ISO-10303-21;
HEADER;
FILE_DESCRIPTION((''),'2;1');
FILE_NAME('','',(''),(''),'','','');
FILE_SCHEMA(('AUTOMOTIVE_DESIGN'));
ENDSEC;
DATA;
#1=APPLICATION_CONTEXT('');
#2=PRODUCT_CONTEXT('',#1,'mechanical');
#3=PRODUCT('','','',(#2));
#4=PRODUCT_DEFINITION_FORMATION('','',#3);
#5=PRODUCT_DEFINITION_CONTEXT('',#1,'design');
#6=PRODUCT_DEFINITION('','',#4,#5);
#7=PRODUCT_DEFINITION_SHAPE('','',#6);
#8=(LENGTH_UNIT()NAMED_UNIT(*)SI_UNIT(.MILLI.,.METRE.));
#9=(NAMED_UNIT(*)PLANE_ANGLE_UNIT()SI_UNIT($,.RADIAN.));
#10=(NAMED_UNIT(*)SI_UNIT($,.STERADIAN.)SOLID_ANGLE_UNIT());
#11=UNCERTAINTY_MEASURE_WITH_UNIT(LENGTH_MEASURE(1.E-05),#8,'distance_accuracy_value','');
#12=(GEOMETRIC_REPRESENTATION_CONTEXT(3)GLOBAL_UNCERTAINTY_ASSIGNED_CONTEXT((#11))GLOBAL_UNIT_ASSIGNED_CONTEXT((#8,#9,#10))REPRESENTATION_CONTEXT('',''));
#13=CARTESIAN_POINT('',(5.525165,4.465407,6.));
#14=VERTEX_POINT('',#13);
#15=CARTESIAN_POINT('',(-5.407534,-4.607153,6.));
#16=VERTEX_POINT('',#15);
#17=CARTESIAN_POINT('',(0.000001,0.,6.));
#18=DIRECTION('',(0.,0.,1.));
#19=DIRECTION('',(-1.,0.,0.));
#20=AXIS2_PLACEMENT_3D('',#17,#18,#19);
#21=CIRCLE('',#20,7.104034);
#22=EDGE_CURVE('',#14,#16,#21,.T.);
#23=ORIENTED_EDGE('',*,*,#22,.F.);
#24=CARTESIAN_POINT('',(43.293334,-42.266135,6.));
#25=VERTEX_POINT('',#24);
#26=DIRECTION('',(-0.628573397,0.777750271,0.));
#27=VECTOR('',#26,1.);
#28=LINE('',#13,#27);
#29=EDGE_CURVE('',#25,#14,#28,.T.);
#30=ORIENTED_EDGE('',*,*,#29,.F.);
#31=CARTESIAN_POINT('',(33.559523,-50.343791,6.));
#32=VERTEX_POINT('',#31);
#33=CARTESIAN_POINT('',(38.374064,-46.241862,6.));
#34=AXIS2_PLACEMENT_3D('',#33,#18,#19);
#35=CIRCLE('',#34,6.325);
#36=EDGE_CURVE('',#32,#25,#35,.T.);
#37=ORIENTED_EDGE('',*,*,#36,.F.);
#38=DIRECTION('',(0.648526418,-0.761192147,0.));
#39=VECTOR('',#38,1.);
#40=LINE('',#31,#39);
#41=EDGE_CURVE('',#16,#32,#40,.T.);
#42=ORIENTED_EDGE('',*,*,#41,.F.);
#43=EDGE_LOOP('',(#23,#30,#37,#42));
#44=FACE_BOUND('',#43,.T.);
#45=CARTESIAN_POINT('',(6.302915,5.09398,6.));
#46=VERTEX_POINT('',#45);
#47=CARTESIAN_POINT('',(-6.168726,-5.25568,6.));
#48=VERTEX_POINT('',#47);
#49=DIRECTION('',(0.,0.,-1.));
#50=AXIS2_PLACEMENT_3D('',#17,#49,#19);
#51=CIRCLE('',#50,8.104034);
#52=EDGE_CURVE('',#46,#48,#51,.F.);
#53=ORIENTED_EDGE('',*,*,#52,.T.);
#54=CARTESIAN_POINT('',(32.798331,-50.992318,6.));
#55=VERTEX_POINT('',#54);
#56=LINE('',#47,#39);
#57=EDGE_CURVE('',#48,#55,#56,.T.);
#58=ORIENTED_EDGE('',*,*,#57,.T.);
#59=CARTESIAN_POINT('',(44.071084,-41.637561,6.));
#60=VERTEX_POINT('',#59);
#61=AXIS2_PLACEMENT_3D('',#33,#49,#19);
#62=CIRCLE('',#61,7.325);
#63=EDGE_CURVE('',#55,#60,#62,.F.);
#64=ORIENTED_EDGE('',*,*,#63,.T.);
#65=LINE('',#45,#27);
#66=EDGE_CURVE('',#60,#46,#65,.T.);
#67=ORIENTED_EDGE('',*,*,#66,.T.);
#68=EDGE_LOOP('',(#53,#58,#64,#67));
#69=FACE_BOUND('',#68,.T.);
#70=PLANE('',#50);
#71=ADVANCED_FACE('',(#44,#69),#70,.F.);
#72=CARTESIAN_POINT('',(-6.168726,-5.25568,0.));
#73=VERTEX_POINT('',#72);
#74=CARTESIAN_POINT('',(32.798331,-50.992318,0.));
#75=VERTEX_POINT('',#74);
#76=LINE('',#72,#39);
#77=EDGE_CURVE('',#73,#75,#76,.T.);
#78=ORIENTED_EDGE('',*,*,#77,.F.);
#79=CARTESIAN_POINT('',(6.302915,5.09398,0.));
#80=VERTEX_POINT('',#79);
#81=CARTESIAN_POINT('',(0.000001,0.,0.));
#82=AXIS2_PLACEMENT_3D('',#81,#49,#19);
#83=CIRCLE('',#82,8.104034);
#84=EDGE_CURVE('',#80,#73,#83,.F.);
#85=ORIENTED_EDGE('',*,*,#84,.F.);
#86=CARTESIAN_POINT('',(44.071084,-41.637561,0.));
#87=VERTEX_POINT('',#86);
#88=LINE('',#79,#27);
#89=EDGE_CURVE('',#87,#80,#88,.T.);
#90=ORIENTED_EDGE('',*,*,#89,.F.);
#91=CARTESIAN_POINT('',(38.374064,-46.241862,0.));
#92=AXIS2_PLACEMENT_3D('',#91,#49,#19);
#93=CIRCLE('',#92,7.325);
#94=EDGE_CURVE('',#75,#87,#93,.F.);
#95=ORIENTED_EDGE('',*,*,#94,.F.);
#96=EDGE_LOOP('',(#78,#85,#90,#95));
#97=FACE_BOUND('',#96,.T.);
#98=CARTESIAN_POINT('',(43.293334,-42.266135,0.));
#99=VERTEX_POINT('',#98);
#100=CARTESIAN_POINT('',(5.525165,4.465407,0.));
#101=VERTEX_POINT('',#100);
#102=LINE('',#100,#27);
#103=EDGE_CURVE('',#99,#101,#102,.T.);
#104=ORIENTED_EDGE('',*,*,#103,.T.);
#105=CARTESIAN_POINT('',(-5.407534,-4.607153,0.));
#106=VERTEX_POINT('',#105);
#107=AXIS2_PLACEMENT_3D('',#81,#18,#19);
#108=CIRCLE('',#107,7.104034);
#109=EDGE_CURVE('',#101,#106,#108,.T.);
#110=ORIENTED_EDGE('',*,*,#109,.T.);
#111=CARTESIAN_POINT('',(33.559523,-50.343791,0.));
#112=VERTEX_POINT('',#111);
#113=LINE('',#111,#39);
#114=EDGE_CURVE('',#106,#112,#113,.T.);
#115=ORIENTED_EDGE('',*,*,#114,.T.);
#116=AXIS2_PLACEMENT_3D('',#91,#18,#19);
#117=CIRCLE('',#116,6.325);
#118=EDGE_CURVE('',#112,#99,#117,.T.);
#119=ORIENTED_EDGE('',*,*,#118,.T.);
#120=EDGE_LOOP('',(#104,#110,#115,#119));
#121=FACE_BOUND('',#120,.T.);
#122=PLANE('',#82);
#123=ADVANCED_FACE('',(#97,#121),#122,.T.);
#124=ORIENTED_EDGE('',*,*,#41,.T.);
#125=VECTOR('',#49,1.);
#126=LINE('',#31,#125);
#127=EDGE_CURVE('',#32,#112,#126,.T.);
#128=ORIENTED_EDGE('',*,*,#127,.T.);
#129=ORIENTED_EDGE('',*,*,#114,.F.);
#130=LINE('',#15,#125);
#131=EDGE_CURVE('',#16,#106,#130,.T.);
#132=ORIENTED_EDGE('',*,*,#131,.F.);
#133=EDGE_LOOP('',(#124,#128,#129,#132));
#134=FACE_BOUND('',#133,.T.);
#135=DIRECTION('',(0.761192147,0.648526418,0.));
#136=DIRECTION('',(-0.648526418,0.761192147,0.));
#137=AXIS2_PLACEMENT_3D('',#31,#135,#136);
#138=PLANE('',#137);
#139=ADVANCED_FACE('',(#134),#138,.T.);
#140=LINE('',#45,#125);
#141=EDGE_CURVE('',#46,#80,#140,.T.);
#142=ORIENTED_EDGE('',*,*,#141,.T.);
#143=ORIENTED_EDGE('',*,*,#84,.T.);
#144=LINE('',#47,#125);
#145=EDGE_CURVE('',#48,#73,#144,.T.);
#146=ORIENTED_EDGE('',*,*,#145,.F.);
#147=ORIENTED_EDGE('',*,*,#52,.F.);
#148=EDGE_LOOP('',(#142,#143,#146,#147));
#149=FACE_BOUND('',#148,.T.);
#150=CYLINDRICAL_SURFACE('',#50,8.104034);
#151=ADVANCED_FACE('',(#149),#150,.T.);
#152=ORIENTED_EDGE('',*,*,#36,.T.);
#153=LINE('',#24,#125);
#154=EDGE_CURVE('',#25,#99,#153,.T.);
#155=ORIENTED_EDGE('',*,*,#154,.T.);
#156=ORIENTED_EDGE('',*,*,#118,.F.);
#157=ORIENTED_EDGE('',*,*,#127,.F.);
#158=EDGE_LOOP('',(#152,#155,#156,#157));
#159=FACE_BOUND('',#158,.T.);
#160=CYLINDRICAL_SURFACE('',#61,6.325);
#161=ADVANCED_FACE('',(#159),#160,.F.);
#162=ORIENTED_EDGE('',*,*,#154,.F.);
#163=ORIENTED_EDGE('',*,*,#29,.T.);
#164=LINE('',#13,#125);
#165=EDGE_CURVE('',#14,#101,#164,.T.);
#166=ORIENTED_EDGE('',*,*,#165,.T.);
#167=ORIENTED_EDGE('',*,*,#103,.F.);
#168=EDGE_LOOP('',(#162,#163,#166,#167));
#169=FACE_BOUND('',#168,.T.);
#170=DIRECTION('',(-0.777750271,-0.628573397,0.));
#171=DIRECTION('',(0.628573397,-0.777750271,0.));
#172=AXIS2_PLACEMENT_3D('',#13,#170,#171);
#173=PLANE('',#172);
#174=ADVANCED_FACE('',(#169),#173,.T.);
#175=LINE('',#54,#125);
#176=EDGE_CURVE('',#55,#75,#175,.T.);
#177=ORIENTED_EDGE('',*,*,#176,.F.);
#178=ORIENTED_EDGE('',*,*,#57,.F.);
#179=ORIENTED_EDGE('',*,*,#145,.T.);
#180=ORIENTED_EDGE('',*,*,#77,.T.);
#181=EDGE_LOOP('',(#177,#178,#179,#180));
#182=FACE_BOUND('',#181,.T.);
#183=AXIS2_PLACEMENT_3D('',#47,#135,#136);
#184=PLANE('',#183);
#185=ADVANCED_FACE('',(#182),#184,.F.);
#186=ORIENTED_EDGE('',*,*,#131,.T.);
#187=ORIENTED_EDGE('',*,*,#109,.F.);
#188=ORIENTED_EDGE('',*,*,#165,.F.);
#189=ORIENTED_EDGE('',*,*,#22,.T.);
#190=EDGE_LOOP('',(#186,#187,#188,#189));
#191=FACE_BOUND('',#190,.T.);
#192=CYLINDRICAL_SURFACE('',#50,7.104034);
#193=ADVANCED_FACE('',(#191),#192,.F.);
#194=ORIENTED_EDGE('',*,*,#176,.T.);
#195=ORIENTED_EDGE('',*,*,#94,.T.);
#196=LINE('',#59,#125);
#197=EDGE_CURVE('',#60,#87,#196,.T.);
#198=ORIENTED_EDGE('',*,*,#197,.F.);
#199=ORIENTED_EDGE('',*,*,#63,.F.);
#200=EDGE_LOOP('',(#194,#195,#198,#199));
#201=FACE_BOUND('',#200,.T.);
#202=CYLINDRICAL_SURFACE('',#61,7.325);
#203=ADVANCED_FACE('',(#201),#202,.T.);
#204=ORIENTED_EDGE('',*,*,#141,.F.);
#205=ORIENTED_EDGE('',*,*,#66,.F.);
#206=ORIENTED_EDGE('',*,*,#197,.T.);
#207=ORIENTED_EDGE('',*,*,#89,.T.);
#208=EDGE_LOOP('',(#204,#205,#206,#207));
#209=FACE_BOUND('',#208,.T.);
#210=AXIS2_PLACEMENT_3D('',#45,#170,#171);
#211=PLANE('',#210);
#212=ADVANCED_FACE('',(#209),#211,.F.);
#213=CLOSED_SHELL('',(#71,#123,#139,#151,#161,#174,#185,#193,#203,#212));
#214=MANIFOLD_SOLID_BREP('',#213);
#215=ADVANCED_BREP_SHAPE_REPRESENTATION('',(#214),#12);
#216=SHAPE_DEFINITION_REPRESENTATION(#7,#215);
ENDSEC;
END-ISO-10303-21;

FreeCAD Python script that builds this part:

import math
import FreeCAD as App
import Part
import Sketcher

doc = App.newDocument("Part")
body = doc.addObject("PartDesign::Body", "Body")

sketch1 = doc.addObject("Sketcher::SketchObject", "Sketch")
body.addObject(sketch1)
sketch1.AttachmentSupport = (doc.XY_Plane, [""])
sketch1.MapMode = "FlatFace"
sketch1.addGeometry(Part.LineSegment(App.Vector(-6.168726, -5.25568, 0), App.Vector(32.798331, -50.992318, 0)), False)
sketch1.addGeometry(Part.ArcOfCircle(Part.Circle(App.Vector(38.374064, -46.241862, 0), App.Vector(0, 0, 1), 7.325), math.radians(-139.569408), math.radians(38.944949)), False)
sketch1.addGeometry(Part.LineSegment(App.Vector(44.071084, -41.637561, 0), App.Vector(6.302915, 5.09398, 0)), False)
sketch1.addGeometry(Part.ArcOfCircle(Part.Circle(App.Vector(0.000001, 0, 0), App.Vector(0, 0, 1), 8.104034), math.radians(38.944949), math.radians(220.430592)), False)
sketch1.addGeometry(Part.LineSegment(App.Vector(33.559523, -50.343791, 0), App.Vector(-5.407534, -4.607153, 0)), False)
sketch1.addGeometry(Part.ArcOfCircle(Part.Circle(App.Vector(0.000001, 0, 0), App.Vector(0, 0, 1), 7.104034), math.radians(38.944949), math.radians(220.430592)), False)
sketch1.addGeometry(Part.LineSegment(App.Vector(5.525165, 4.465407, 0), App.Vector(43.293334, -42.266135, 0)), False)
sketch1.addGeometry(Part.ArcOfCircle(Part.Circle(App.Vector(38.374064, -46.241862, 0), App.Vector(0, 0, 1), 6.325), math.radians(-139.569408), math.radians(38.944949)), False)
sketch1.addConstraint(Sketcher.Constraint("Tangent", 0, 2, 1, 1))
sketch1.addConstraint(Sketcher.Constraint("Tangent", 1, 2, 2, 1))
sketch1.addConstraint(Sketcher.Constraint("Tangent", 2, 2, 3, 1))
sketch1.addConstraint(Sketcher.Constraint("Tangent", 3, 2, 0, 1))
sketch1.addConstraint(Sketcher.Constraint("Tangent", 4, 2, 5, 2))
sketch1.addConstraint(Sketcher.Constraint("Tangent", 5, 1, 6, 1))
sketch1.addConstraint(Sketcher.Constraint("Tangent", 6, 2, 7, 2))
sketch1.addConstraint(Sketcher.Constraint("Tangent", 7, 1, 4, 1))
sketch1.addConstraint(Sketcher.Constraint("Coincident", 3, 3, -1, 1))
sketch1.addConstraint(Sketcher.Constraint("Coincident", 5, 3, -1, 1))
sketch1.addConstraint(Sketcher.Constraint("Coincident", 7, 3, 1, 3))
sketch1.addConstraint(Sketcher.Constraint("Parallel", 0, 4))
sketch1.addConstraint(Sketcher.Constraint("Radius", 1, 7.325))
sketch1.addConstraint(Sketcher.Constraint("Radius", 7, 6.325))
sketch1.addConstraint(Sketcher.Constraint("Radius", 3, 8.104034))
sketch1.addConstraint(Sketcher.Constraint("DistanceY", 1, 3, 1, 2, 4.6043))
sketch1.addConstraint(Sketcher.Constraint("DistanceY", 1, 3, -1, 1, 46.241862))
pad1 = doc.addObject("PartDesign::Pad", "Pad")
body.addObject(pad1)
pad1.Profile = sketch1
pad1.Length = 6

doc.recompute()
